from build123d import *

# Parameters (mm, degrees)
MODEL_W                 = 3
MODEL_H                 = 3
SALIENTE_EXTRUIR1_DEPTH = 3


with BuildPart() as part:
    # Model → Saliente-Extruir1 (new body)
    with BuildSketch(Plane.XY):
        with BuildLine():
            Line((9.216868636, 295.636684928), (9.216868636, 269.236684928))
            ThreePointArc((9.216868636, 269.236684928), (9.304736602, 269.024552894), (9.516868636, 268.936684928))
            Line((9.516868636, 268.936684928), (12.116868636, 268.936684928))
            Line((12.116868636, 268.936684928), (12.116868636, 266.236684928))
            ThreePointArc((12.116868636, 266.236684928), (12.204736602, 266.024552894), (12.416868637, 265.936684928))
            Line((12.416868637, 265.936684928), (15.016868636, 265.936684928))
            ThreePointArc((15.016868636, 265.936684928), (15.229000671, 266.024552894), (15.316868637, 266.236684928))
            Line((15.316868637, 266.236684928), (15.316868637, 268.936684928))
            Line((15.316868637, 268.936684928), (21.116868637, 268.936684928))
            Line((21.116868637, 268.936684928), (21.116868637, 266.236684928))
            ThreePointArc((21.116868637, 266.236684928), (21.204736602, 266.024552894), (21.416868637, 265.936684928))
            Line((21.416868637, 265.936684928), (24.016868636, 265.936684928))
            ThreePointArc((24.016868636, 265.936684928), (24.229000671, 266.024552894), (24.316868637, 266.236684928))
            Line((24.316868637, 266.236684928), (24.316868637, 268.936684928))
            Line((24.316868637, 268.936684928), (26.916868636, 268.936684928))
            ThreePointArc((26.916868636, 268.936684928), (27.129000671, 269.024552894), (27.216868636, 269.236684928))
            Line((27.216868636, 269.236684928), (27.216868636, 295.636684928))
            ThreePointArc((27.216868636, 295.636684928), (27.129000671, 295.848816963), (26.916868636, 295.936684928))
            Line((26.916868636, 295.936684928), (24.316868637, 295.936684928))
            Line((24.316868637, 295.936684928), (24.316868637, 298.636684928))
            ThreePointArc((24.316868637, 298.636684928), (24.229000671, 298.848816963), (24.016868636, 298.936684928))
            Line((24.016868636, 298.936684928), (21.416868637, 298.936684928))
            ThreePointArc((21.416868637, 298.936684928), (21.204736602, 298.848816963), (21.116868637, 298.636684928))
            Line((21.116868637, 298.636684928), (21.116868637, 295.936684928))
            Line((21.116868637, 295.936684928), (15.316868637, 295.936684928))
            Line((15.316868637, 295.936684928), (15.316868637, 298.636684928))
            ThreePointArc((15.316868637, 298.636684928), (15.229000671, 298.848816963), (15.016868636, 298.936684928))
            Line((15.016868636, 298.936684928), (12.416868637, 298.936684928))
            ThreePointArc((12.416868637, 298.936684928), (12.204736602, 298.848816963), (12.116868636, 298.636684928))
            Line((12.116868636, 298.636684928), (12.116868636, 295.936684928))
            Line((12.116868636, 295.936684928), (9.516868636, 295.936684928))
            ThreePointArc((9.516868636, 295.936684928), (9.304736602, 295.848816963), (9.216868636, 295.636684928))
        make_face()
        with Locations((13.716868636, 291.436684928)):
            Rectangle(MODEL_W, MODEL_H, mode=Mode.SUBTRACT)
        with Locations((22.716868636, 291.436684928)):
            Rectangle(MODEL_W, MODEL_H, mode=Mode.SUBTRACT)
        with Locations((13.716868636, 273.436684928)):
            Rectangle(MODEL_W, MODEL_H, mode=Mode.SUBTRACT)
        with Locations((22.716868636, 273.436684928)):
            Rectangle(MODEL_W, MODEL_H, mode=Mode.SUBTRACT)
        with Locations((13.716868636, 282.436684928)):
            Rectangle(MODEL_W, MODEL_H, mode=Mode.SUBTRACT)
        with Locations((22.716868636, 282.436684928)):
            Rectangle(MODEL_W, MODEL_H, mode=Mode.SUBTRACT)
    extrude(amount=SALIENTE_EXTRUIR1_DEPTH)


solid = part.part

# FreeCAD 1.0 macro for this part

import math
import FreeCAD as App
import Part
import Sketcher

V = App.Vector
Q = App.Units.Quantity

doc = App.newDocument("Part")
params = doc.addObject("Spreadsheet::Sheet", "Params")
for row, (alias, value) in enumerate([
    ("sketch1_radius", "0.3 mm"),
    ("sketch1_width", "3 mm"),
    ("sketch1_width2", "2.6 mm"),
    ("sketch1_width3", "5.8 mm"),
    ("sketch1_height", "26.4 mm"),
    ("pad1_length", "3 mm"),
], start=1):
    params.set(f"A{row}", alias)
    params.set(f"B{row}", "=" + value)
    params.setAlias(f"B{row}", alias)

body = doc.addObject("PartDesign::Body", "Body")

sketch1 = body.newObject("Sketcher::SketchObject", "Sketch")
sketch1.AttachmentSupport = (doc.getObject("XY_Plane"), [""])
sketch1.MapMode = "FlatFace"
sketch1.addGeometry([
    Part.LineSegment(V(9.216869, 295.636685, 0), V(9.216869, 269.236685, 0)),
    Part.ArcOfCircle(Part.Circle(V(9.516869, 269.236685, 0), V(0, 0, 1), 0.3), math.radians(-180), math.radians(-90)),
    Part.LineSegment(V(9.516869, 268.936685, 0), V(12.116869, 268.936685, 0)),
    Part.LineSegment(V(12.116869, 268.936685, 0), V(12.116869, 266.236685, 0)),
    Part.ArcOfCircle(Part.Circle(V(12.416869, 266.236685, 0), V(0, 0, 1), 0.3), math.radians(-180), math.radians(-90)),
    Part.LineSegment(V(12.416869, 265.936685, 0), V(15.016869, 265.936685, 0)),
    Part.ArcOfCircle(Part.Circle(V(15.016869, 266.236685, 0), V(0, 0, 1), 0.3), math.radians(-90), math.radians(0)),
    Part.LineSegment(V(15.316869, 266.236685, 0), V(15.316869, 268.936685, 0)),
    Part.LineSegment(V(15.316869, 268.936685, 0), V(21.116869, 268.936685, 0)),
    Part.LineSegment(V(21.116869, 268.936685, 0), V(21.116869, 266.236685, 0)),
    Part.ArcOfCircle(Part.Circle(V(21.416869, 266.236685, 0), V(0, 0, 1), 0.3), math.radians(180), math.radians(270)),
    Part.LineSegment(V(21.416869, 265.936685, 0), V(24.016869, 265.936685, 0)),
    Part.ArcOfCircle(Part.Circle(V(24.016869, 266.236685, 0), V(0, 0, 1), 0.3), math.radians(-90), math.radians(0)),
    Part.LineSegment(V(24.316869, 266.236685, 0), V(24.316869, 268.936685, 0)),
    Part.LineSegment(V(24.316869, 268.936685, 0), V(26.916869, 268.936685, 0)),
    Part.ArcOfCircle(Part.Circle(V(26.916869, 269.236685, 0), V(0, 0, 1), 0.3), math.radians(-90), math.radians(0)),
    Part.LineSegment(V(27.216869, 269.236685, 0), V(27.216869, 295.636685, 0)),
    Part.ArcOfCircle(Part.Circle(V(26.916869, 295.636685, 0), V(0, 0, 1), 0.3), math.radians(0), math.radians(90)),
    Part.LineSegment(V(26.916869, 295.936685, 0), V(24.316869, 295.936685, 0)),
    Part.LineSegment(V(24.316869, 295.936685, 0), V(24.316869, 298.636685, 0)),
    Part.ArcOfCircle(Part.Circle(V(24.016869, 298.636685, 0), V(0, 0, 1), 0.3), math.radians(0), math.radians(90)),
    Part.LineSegment(V(24.016869, 298.936685, 0), V(21.416869, 298.936685, 0)),
    Part.ArcOfCircle(Part.Circle(V(21.416869, 298.636685, 0), V(0, 0, 1), 0.3), math.radians(90), math.radians(180)),
    Part.LineSegment(V(21.116869, 298.636685, 0), V(21.116869, 295.936685, 0)),
    Part.LineSegment(V(21.116869, 295.936685, 0), V(15.316869, 295.936685, 0)),
    Part.LineSegment(V(15.316869, 295.936685, 0), V(15.316869, 298.636685, 0)),
    Part.ArcOfCircle(Part.Circle(V(15.016869, 298.636685, 0), V(0, 0, 1), 0.3), math.radians(0), math.radians(90)),
    Part.LineSegment(V(15.016869, 298.936685, 0), V(12.416869, 298.936685, 0)),
    Part.ArcOfCircle(Part.Circle(V(12.416869, 298.636685, 0), V(0, 0, 1), 0.3), math.radians(90), math.radians(180)),
    Part.LineSegment(V(12.116869, 298.636685, 0), V(12.116869, 295.936685, 0)),
    Part.LineSegment(V(12.116869, 295.936685, 0), V(9.516869, 295.936685, 0)),
    Part.ArcOfCircle(Part.Circle(V(9.516869, 295.636685, 0), V(0, 0, 1), 0.3), math.radians(90), math.radians(180)),
    Part.LineSegment(V(15.216869, 271.936685, 0), V(12.216869, 271.936685, 0)),
    Part.LineSegment(V(12.216869, 271.936685, 0), V(12.216869, 274.936685, 0)),
    Part.LineSegment(V(12.216869, 274.936685, 0), V(15.216869, 274.936685, 0)),
    Part.LineSegment(V(15.216869, 274.936685, 0), V(15.216869, 271.936685, 0)),
    Part.LineSegment(V(24.216869, 271.936685, 0), V(21.216869, 271.936685, 0)),
    Part.LineSegment(V(21.216869, 271.936685, 0), V(21.216869, 274.936685, 0)),
    Part.LineSegment(V(21.216869, 274.936685, 0), V(24.216869, 274.936685, 0)),
    Part.LineSegment(V(24.216869, 274.936685, 0), V(24.216869, 271.936685, 0)),
    Part.LineSegment(V(15.216869, 280.936685, 0), V(12.216869, 280.936685, 0)),
    Part.LineSegment(V(12.216869, 280.936685, 0), V(12.216869, 283.936685, 0)),
    Part.LineSegment(V(12.216869, 283.936685, 0), V(15.216869, 283.936685, 0)),
    Part.LineSegment(V(15.216869, 283.936685, 0), V(15.216869, 280.936685, 0)),
    Part.LineSegment(V(15.216869, 289.936685, 0), V(12.216869, 289.936685, 0)),
    Part.LineSegment(V(12.216869, 289.936685, 0), V(12.216869, 292.936685, 0)),
    Part.LineSegment(V(12.216869, 292.936685, 0), V(15.216869, 292.936685, 0)),
    Part.LineSegment(V(15.216869, 292.936685, 0), V(15.216869, 289.936685, 0)),
    Part.LineSegment(V(24.216869, 280.936685, 0), V(21.216869, 280.936685, 0)),
    Part.LineSegment(V(21.216869, 280.936685, 0), V(21.216869, 283.936685, 0)),
    Part.LineSegment(V(21.216869, 283.936685, 0), V(24.216869, 283.936685, 0)),
    Part.LineSegment(V(24.216869, 283.936685, 0), V(24.216869, 280.936685, 0)),
    Part.LineSegment(V(24.216869, 289.936685, 0), V(21.216869, 289.936685, 0)),
    Part.LineSegment(V(21.216869, 289.936685, 0), V(21.216869, 292.936685, 0)),
    Part.LineSegment(V(21.216869, 292.936685, 0), V(24.216869, 292.936685, 0)),
    Part.LineSegment(V(24.216869, 292.936685, 0), V(24.216869, 289.936685, 0)),
], False)
sketch1.addConstraint([
    Sketcher.Constraint("Tangent", 0, 2, 1, 1),
    Sketcher.Constraint("Tangent", 1, 2, 2, 1),
    Sketcher.Constraint("Coincident", 2, 2, 3, 1),
    Sketcher.Constraint("Tangent", 3, 2, 4, 1),
    Sketcher.Constraint("Tangent", 4, 2, 5, 1),
    Sketcher.Constraint("Tangent", 5, 2, 6, 1),
    Sketcher.Constraint("Tangent", 6, 2, 7, 1),
    Sketcher.Constraint("Coincident", 7, 2, 8, 1),
    Sketcher.Constraint("Coincident", 8, 2, 9, 1),
    Sketcher.Constraint("Tangent", 9, 2, 10, 1),
    Sketcher.Constraint("Tangent", 10, 2, 11, 1),
    Sketcher.Constraint("Tangent", 11, 2, 12, 1),
    Sketcher.Constraint("Tangent", 12, 2, 13, 1),
    Sketcher.Constraint("Coincident", 13, 2, 14, 1),
    Sketcher.Constraint("Tangent", 14, 2, 15, 1),
    Sketcher.Constraint("Tangent", 15, 2, 16, 1),
    Sketcher.Constraint("Tangent", 16, 2, 17, 1),
    Sketcher.Constraint("Tangent", 17, 2, 18, 1),
    Sketcher.Constraint("Coincident", 18, 2, 19, 1),
    Sketcher.Constraint("Tangent", 19, 2, 20, 1),
    Sketcher.Constraint("Tangent", 20, 2, 21, 1),
    Sketcher.Constraint("Tangent", 21, 2, 22, 1),
    Sketcher.Constraint("Tangent", 22, 2, 23, 1),
    Sketcher.Constraint("Coincident", 23, 2, 24, 1),
    Sketcher.Constraint("Coincident", 24, 2, 25, 1),
    Sketcher.Constraint("Tangent", 25, 2, 26, 1),
    Sketcher.Constraint("Tangent", 26, 2, 27, 1),
    Sketcher.Constraint("Tangent", 27, 2, 28, 1),
    Sketcher.Constraint("Tangent", 28, 2, 29, 1),
    Sketcher.Constraint("Coincident", 29, 2, 30, 1),
    Sketcher.Constraint("Tangent", 30, 2, 31, 1),
    Sketcher.Constraint("Tangent", 31, 2, 0, 1),
    Sketcher.Constraint("Coincident", 32, 2, 33, 1),
    Sketcher.Constraint("Coincident", 33, 2, 34, 1),
    Sketcher.Constraint("Coincident", 34, 2, 35, 1),
    Sketcher.Constraint("Coincident", 35, 2, 32, 1),
    Sketcher.Constraint("Coincident", 36, 2, 37, 1),
    Sketcher.Constraint("Coincident", 37, 2, 38, 1),
    Sketcher.Constraint("Coincident", 38, 2, 39, 1),
    Sketcher.Constraint("Coincident", 39, 2, 36, 1),
    Sketcher.Constraint("Coincident", 40, 2, 41, 1),
    Sketcher.Constraint("Coincident", 41, 2, 42, 1),
    Sketcher.Constraint("Coincident", 42, 2, 43, 1),
    Sketcher.Constraint("Coincident", 43, 2, 40, 1),
    Sketcher.Constraint("Coincident", 44, 2, 45, 1),
    Sketcher.Constraint("Coincident", 45, 2, 46, 1),
    Sketcher.Constraint("Coincident", 46, 2, 47, 1),
    Sketcher.Constraint("Coincident", 47, 2, 44, 1),
    Sketcher.Constraint("Coincident", 48, 2, 49, 1),
    Sketcher.Constraint("Coincident", 49, 2, 50, 1),
    Sketcher.Constraint("Coincident", 50, 2, 51, 1),
    Sketcher.Constraint("Coincident", 51, 2, 48, 1),
    Sketcher.Constraint("Coincident", 52, 2, 53, 1),
    Sketcher.Constraint("Coincident", 53, 2, 54, 1),
    Sketcher.Constraint("Coincident", 54, 2, 55, 1),
    Sketcher.Constraint("Coincident", 55, 2, 52, 1),
    Sketcher.Constraint("Vertical", 0),
    Sketcher.Constraint("Horizontal", 2),
    Sketcher.Constraint("Vertical", 3),
    Sketcher.Constraint("Horizontal", 5),
    Sketcher.Constraint("Vertical", 7),
    Sketcher.Constraint("Horizontal", 8),
    Sketcher.Constraint("Vertical", 9),
    Sketcher.Constraint("Horizontal", 11),
    Sketcher.Constraint("Vertical", 13),
    Sketcher.Constraint("Horizontal", 14),
    Sketcher.Constraint("Vertical", 16),
    Sketcher.Constraint("Horizontal", 18),
    Sketcher.Constraint("Vertical", 19),
    Sketcher.Constraint("Horizontal", 21),
    Sketcher.Constraint("Vertical", 23),
    Sketcher.Constraint("Horizontal", 24),
    Sketcher.Constraint("Vertical", 25),
    Sketcher.Constraint("Horizontal", 27),
    Sketcher.Constraint("Vertical", 29),
    Sketcher.Constraint("Horizontal", 30),
    Sketcher.Constraint("Horizontal", 32),
    Sketcher.Constraint("Vertical", 33),
    Sketcher.Constraint("Horizontal", 34),
    Sketcher.Constraint("Vertical", 35),
    Sketcher.Constraint("Horizontal", 36),
    Sketcher.Constraint("Vertical", 37),
    Sketcher.Constraint("Horizontal", 38),
    Sketcher.Constraint("Vertical", 39),
    Sketcher.Constraint("Horizontal", 40),
    Sketcher.Constraint("Vertical", 41),
    Sketcher.Constraint("Horizontal", 42),
    Sketcher.Constraint("Vertical", 43),
    Sketcher.Constraint("Horizontal", 44),
    Sketcher.Constraint("Vertical", 45),
    Sketcher.Constraint("Horizontal", 46),
    Sketcher.Constraint("Vertical", 47),
    Sketcher.Constraint("Horizontal", 48),
    Sketcher.Constraint("Vertical", 49),
    Sketcher.Constraint("Horizontal", 50),
    Sketcher.Constraint("Vertical", 51),
    Sketcher.Constraint("Horizontal", 52),
    Sketcher.Constraint("Vertical", 53),
    Sketcher.Constraint("Horizontal", 54),
    Sketcher.Constraint("Vertical", 55),
    Sketcher.Constraint("Equal", 1, 4),
    Sketcher.Constraint("Equal", 4, 6),
    Sketcher.Constraint("Equal", 6, 10),
    Sketcher.Constraint("Equal", 10, 12),
    Sketcher.Constraint("Equal", 12, 15),
    Sketcher.Constraint("Equal", 15, 17),
    Sketcher.Constraint("Equal", 17, 20),
    Sketcher.Constraint("Equal", 20, 22),
    Sketcher.Constraint("Equal", 22, 26),
    Sketcher.Constraint("Equal", 26, 28),
    Sketcher.Constraint("Equal", 28, 31),
    Sketcher.Constraint("Horizontal", 6, 3, 10, 3),
    Sketcher.Constraint("Horizontal", 1, 3, 15, 3),
    Sketcher.Constraint("Horizontal", 22, 3, 26, 3),
    Sketcher.Constraint("Horizontal", 17, 3, 31, 3),
    Sketcher.Constraint("Horizontal", 2, 2, 7, 2),
    Sketcher.Constraint("Horizontal", 18, 2, 23, 2),
    Sketcher.Constraint("Horizontal", 35, 2, 36, 2),
    Sketcher.Constraint("Horizontal", 34, 2, 37, 2),
    Sketcher.Constraint("Horizontal", 43, 2, 48, 2),
    Sketcher.Constraint("Horizontal", 42, 2, 49, 2),
    Sketcher.Constraint("Horizontal", 47, 2, 52, 2),
    Sketcher.Constraint("Horizontal", 46, 2, 53, 2),
    Sketcher.Constraint("Vertical", 12, 3, 20, 3),
    Sketcher.Constraint("Vertical", 10, 3, 22, 3),
    Sketcher.Constraint("Vertical", 6, 3, 26, 3),
    Sketcher.Constraint("Vertical", 4, 3, 28, 3),
    Sketcher.Constraint("Vertical", 33, 2, 40, 2),
    Sketcher.Constraint("Vertical", 35, 2, 42, 2),
    Sketcher.Constraint("Vertical", 41, 2, 44, 2),
    Sketcher.Constraint("Vertical", 43, 2, 46, 2),
    Sketcher.Constraint("Vertical", 37, 2, 48, 2),
    Sketcher.Constraint("Vertical", 39, 2, 50, 2),
    Sketcher.Constraint("Vertical", 49, 2, 52, 2),
    Sketcher.Constraint("Vertical", 51, 2, 54, 2),
    Sketcher.Constraint("Equal", 2, 5),
    Sketcher.Constraint("Equal", 5, 11),
    Sketcher.Constraint("Equal", 11, 14),
    Sketcher.Constraint("Equal", 34, 36),
    Sketcher.Constraint("Equal", 13, 19),
    Sketcher.Constraint("Equal", 54, 33),
    Sketcher.Constraint("Equal", 39, 41),
    Sketcher.Constraint("Equal", 43, 45),
    Sketcher.Constraint("Radius", 1, Q("0.3 mm")),
    Sketcher.Constraint("DistanceX", 32, 2, 32, 1, Q("3 mm")),
    Sketcher.Constraint("DistanceX", 2, 1, 2, 2, Q("2.6 mm")),
    Sketcher.Constraint("DistanceX", 8, 1, 8, 2, Q("5.8 mm")),
    Sketcher.Constraint("DistanceY", 0, 2, 0, 1, Q("26.4 mm")),
    Sketcher.Constraint("DistanceY", 3, 2, 3, 1, Q("2.7 mm")),
    Sketcher.Constraint("DistanceX", -1, 1, 1, 3, Q("9.516869 mm")),
    Sketcher.Constraint("DistanceX", -1, 1, 32, 2, Q("12.216869 mm")),
    Sketcher.Constraint("DistanceX", -1, 1, 36, 2, Q("21.216869 mm")),
    Sketcher.Constraint("DistanceY", -1, 1, 1, 3, Q("269.236685 mm")),
    Sketcher.Constraint("DistanceY", -1, 1, 32, 2, Q("271.936685 mm")),
    Sketcher.Constraint("DistanceY", -1, 1, 40, 2, Q("280.936685 mm")),
    Sketcher.Constraint("DistanceY", -1, 1, 44, 2, Q("289.936685 mm")),
])
sketch1.setExpression("Constraints[143]", "Params.sketch1_radius")
sketch1.setExpression("Constraints[144]", "Params.sketch1_width")
sketch1.setExpression("Constraints[145]", "Params.sketch1_width2")
sketch1.setExpression("Constraints[146]", "Params.sketch1_width3")
sketch1.setExpression("Constraints[147]", "Params.sketch1_height")
pad1 = body.newObject("PartDesign::Pad", "Pad")
pad1.Profile = sketch1
pad1.setExpression("Length", "Params.pad1_length")

doc.recompute()
